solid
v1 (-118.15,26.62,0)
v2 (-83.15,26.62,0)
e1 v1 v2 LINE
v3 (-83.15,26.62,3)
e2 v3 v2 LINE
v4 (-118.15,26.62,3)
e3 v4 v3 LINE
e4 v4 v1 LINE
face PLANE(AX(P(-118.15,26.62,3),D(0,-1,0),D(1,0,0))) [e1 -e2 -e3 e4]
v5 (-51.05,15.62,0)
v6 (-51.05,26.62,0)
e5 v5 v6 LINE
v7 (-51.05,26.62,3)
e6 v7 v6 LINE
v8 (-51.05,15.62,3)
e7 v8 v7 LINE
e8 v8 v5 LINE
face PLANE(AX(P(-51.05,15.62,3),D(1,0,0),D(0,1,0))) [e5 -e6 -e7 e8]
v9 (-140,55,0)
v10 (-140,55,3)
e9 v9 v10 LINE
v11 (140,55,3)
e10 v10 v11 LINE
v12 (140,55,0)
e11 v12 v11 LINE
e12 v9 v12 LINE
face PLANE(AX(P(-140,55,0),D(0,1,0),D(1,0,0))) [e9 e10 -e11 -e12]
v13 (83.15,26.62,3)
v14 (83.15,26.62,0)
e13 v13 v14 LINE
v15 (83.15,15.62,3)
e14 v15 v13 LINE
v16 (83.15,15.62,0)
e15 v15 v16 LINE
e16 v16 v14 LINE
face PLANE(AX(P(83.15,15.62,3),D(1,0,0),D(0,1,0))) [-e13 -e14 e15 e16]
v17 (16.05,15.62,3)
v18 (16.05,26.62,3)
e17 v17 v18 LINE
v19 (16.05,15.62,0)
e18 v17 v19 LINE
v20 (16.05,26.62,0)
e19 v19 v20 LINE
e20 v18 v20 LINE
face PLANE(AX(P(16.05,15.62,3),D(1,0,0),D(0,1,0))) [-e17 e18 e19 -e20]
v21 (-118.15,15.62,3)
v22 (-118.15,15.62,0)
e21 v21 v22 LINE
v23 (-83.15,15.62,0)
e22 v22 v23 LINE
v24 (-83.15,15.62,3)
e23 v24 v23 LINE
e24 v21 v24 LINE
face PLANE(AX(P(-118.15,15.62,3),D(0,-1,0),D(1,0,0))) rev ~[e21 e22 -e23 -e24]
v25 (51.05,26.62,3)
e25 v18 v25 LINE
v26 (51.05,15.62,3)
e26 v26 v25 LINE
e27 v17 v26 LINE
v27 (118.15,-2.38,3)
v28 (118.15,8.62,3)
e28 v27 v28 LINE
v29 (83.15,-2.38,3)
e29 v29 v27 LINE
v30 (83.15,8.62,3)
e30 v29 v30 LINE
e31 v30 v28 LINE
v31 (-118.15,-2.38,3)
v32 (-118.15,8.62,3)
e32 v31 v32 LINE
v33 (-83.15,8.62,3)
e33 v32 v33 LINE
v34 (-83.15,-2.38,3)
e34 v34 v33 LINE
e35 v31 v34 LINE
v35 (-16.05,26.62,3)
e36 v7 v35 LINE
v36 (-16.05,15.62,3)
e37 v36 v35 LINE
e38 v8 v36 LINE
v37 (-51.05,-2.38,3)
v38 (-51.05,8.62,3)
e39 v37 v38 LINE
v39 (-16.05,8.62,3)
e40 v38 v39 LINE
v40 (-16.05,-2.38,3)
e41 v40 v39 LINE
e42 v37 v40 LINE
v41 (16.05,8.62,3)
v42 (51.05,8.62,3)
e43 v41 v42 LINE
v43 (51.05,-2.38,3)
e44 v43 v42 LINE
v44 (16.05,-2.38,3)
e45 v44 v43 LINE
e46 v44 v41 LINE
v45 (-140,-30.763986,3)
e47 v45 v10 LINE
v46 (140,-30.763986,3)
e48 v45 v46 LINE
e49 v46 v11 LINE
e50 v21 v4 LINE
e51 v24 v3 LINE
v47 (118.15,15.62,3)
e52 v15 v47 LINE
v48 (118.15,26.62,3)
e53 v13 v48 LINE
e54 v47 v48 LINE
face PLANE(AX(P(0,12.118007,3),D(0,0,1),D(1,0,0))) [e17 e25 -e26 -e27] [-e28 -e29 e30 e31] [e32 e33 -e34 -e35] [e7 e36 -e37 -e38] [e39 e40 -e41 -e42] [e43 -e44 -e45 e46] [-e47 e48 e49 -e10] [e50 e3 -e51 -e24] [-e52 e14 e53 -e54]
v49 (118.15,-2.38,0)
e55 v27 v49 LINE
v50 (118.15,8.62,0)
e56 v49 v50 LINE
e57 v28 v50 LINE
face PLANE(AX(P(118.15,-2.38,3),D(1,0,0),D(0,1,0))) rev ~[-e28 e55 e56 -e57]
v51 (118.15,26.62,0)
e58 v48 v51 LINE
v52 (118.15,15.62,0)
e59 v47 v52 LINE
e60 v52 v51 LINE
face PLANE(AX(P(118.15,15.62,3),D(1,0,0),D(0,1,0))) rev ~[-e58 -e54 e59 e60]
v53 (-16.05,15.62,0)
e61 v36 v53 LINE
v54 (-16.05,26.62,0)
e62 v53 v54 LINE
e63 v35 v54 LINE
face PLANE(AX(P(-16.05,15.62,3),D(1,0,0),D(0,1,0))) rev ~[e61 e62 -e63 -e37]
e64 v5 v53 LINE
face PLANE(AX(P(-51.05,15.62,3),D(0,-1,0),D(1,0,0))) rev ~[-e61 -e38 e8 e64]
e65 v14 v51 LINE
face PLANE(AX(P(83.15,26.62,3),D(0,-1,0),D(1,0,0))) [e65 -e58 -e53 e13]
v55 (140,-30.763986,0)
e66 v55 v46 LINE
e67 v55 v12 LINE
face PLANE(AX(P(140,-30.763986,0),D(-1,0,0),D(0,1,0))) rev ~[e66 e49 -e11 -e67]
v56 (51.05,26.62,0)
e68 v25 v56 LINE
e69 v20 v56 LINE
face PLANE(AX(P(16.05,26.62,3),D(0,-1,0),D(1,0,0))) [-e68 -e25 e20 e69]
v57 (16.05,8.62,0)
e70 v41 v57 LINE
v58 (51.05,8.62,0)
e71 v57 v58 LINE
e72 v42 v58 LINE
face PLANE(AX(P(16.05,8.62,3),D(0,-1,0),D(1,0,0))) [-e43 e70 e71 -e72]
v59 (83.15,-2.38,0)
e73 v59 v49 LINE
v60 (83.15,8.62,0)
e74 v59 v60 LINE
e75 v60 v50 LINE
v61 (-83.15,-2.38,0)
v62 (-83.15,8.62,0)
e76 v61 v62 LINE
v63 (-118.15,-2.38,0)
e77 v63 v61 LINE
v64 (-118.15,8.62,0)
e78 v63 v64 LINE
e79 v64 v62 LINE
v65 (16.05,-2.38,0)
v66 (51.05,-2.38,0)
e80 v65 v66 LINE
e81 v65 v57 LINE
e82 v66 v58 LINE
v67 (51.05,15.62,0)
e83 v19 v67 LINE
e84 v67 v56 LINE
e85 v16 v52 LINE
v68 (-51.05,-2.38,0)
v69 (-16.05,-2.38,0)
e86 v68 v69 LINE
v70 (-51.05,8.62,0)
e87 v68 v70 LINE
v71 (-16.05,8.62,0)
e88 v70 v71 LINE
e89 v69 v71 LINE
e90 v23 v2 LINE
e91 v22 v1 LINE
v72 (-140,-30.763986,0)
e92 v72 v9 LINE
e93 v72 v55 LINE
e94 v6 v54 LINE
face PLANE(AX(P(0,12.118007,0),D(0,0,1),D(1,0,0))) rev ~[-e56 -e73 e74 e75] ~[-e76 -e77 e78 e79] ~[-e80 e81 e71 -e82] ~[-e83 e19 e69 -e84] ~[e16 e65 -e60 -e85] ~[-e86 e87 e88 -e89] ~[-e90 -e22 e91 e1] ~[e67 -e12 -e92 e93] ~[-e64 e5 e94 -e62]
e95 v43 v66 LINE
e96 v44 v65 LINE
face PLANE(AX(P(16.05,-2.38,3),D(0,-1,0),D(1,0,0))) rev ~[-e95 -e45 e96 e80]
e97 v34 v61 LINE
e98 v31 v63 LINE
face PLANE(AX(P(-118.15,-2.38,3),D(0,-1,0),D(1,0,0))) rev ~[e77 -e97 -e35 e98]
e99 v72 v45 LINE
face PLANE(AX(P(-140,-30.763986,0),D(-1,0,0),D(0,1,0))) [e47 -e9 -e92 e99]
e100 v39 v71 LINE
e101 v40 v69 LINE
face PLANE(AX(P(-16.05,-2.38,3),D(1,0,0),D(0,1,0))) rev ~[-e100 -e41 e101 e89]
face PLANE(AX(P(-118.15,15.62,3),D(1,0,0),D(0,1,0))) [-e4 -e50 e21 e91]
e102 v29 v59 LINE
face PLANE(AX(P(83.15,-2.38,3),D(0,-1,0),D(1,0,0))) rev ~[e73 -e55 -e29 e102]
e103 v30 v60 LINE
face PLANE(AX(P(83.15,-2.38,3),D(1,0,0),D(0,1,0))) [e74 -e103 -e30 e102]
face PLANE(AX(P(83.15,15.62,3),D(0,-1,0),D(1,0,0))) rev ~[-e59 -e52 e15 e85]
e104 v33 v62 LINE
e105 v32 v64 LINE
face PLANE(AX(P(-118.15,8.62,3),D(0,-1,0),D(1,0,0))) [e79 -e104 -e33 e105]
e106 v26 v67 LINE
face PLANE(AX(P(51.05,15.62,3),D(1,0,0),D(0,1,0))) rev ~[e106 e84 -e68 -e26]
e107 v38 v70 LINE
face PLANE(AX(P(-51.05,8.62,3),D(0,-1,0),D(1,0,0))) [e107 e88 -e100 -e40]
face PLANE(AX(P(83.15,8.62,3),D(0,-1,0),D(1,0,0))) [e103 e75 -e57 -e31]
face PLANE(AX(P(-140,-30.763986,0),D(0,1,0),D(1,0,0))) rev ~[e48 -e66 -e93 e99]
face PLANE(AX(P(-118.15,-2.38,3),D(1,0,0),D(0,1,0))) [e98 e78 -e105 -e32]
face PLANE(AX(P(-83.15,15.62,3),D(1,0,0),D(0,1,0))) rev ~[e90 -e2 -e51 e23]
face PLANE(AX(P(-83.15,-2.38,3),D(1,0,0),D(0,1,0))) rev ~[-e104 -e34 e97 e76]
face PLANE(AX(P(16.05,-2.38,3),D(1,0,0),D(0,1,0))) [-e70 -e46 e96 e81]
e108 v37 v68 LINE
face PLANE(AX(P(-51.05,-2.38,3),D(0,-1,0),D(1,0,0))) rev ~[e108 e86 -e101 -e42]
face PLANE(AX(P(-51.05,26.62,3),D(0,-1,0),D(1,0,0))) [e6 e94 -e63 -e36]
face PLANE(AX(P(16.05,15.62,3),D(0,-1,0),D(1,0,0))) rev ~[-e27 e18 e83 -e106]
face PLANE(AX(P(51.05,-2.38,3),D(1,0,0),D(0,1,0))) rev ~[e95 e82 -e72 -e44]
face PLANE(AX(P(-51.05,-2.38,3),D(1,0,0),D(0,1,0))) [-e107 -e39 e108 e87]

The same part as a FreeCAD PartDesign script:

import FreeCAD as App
import Part
import Sketcher
from FreeCAD import Vector

doc = App.newDocument("Part")
body = doc.addObject("PartDesign::Body", "Body")

# Sketch on XY plane
sketch1 = body.newObject("Sketcher::SketchObject", "Sketch")
sketch1.AttachmentSupport = (doc.getObject("XY_Plane"), [""])
sketch1.MapMode = "FlatFace"
sketch1.addGeometry(Part.LineSegment(Vector(-140, 55, 0), Vector(-140, -31, 0)), False)
sketch1.addGeometry(Part.LineSegment(Vector(-140, -31, 0), Vector(140, -31, 0)), False)
sketch1.addGeometry(Part.LineSegment(Vector(140, -31, 0), Vector(140, 55, 0)), False)
sketch1.addGeometry(Part.LineSegment(Vector(140, 55, 0), Vector(-140, 55, 0)), False)
sketch1.addConstraint(Sketcher.Constraint("Coincident", 0, 2, 1, 1))
sketch1.addConstraint(Sketcher.Constraint("Coincident", 1, 2, 2, 1))
sketch1.addConstraint(Sketcher.Constraint("Coincident", 2, 2, 3, 1))
sketch1.addConstraint(Sketcher.Constraint("Coincident", 3, 2, 0, 1))
sketch1.addConstraint(Sketcher.Constraint("Vertical", 0))
sketch1.addConstraint(Sketcher.Constraint("Horizontal", 1))
sketch1.addConstraint(Sketcher.Constraint("Vertical", 2))
sketch1.addConstraint(Sketcher.Constraint("Horizontal", 3))
sketch1.addConstraint(Sketcher.Constraint("DistanceX", 1, 1, 1, 2, 280.0))
sketch1.addConstraint(Sketcher.Constraint("DistanceX", 0, 2, -1, 1, 140.0))
sketch1.addConstraint(Sketcher.Constraint("DistanceY", -1, 1, 2, 2, 55.0))
sketch1.addConstraint(Sketcher.Constraint("DistanceY", 0, 2, 0, 1, 85.763986))
pad1 = body.newObject("PartDesign::Pad", "Pad")
pad1.Profile = sketch1
pad1.Length = 3

# Sketch on XY plane
sketch2 = body.newObject("Sketcher::SketchObject", "Sketch001")
sketch2.AttachmentSupport = (doc.getObject("XY_Plane"), [""])
sketch2.MapMode = "FlatFace"
sketch2.AttachmentOffset = App.Placement(Vector(0, 0, 3), App.Rotation())
sketch2.addGeometry(Part.LineSegment(Vector(-118, 27, 0), Vector(-118, 16, 0)), False)
sketch2.addGeometry(Part.LineSegment(Vector(-118, 16, 0), Vector(-83, 16, 0)), False)
sketch2.addGeometry(Part.LineSegment(Vector(-83, 16, 0), Vector(-83, 27, 0)), False)
sketch2.addGeometry(Part.LineSegment(Vector(-83, 27, 0), Vector(-118, 27, 0)), False)
sketch2.addGeometry(Part.LineSegment(Vector(83, 9, 0), Vector(83, -2, 0)), False)
sketch2.addGeometry(Part.LineSegment(Vector(83, -2, 0), Vector(118, -2, 0)), False)
sketch2.addGeometry(Part.LineSegment(Vector(118, -2, 0), Vector(118, 9, 0)), False)
sketch2.addGeometry(Part.LineSegment(Vector(118, 9, 0), Vector(83, 9, 0)), False)
sketch2.addGeometry(Part.LineSegment(Vector(83, 27, 0), Vector(83, 16, 0)), False)
sketch2.addGeometry(Part.LineSegment(Vector(83, 16, 0), Vector(118, 16, 0)), False)
sketch2.addGeometry(Part.LineSegment(Vector(118, 16, 0), Vector(118, 27, 0)), False)
sketch2.addGeometry(Part.LineSegment(Vector(118, 27, 0), Vector(83, 27, 0)), False)
sketch2.addGeometry(Part.LineSegment(Vector(16, 9, 0), Vector(16, -2, 0)), False)
sketch2.addGeometry(Part.LineSegment(Vector(16, -2, 0), Vector(51, -2, 0)), False)
sketch2.addGeometry(Part.LineSegment(Vector(51, -2, 0), Vector(51, 9, 0)), False)
sketch2.addGeometry(Part.LineSegment(Vector(51, 9, 0), Vector(16, 9, 0)), False)
sketch2.addGeometry(Part.LineSegment(Vector(16, 27, 0), Vector(16, 16, 0)), False)
sketch2.addGeometry(Part.LineSegment(Vector(16, 16, 0), Vector(51, 16, 0)), False)
sketch2.addGeometry(Part.LineSegment(Vector(51, 16, 0), Vector(51, 27, 0)), False)
sketch2.addGeometry(Part.LineSegment(Vector(51, 27, 0), Vector(16, 27, 0)), False)
sketch2.addGeometry(Part.LineSegment(Vector(-51, 9, 0), Vector(-51, -2, 0)), False)
sketch2.addGeometry(Part.LineSegment(Vector(-51, -2, 0), Vector(-16, -2, 0)), False)
sketch2.addGeometry(Part.LineSegment(Vector(-16, -2, 0), Vector(-16, 9, 0)), False)
sketch2.addGeometry(Part.LineSegment(Vector(-16, 9, 0), Vector(-51, 9, 0)), False)
sketch2.addGeometry(Part.LineSegment(Vector(-51, 27, 0), Vector(-51, 16, 0)), False)
sketch2.addGeometry(Part.LineSegment(Vector(-51, 16, 0), Vector(-16, 16, 0)), False)
sketch2.addGeometry(Part.LineSegment(Vector(-16, 16, 0), Vector(-16, 27, 0)), False)
sketch2.addGeometry(Part.LineSegment(Vector(-16, 27, 0), Vector(-51, 27, 0)), False)
sketch2.addGeometry(Part.LineSegment(Vector(-118, 9, 0), Vector(-118, -2, 0)), False)
sketch2.addGeometry(Part.LineSegment(Vector(-118, -2, 0), Vector(-83, -2, 0)), False)
sketch2.addGeometry(Part.LineSegment(Vector(-83, -2, 0), Vector(-83, 9, 0)), False)
sketch2.addGeometry(Part.LineSegment(Vector(-83, 9, 0), Vector(-118, 9, 0)), False)
sketch2.addConstraint(Sketcher.Constraint("Coincident", 0, 2, 1, 1))
sketch2.addConstraint(Sketcher.Constraint("Coincident", 1, 2, 2, 1))
sketch2.addConstraint(Sketcher.Constraint("Coincident", 2, 2, 3, 1))
sketch2.addConstraint(Sketcher.Constraint("Coincident", 3, 2, 0, 1))
sketch2.addConstraint(Sketcher.Constraint("Coincident", 4, 2, 5, 1))
sketch2.addConstraint(Sketcher.Constraint("Coincident", 5, 2, 6, 1))
sketch2.addConstraint(Sketcher.Constraint("Coincident", 6, 2, 7, 1))
sketch2.addConstraint(Sketcher.Constraint("Coincident", 7, 2, 4, 1))
sketch2.addConstraint(Sketcher.Constraint("Coincident", 8, 2, 9, 1))
sketch2.addConstraint(Sketcher.Constraint("Coincident", 9, 2, 10, 1))
sketch2.addConstraint(Sketcher.Constraint("Coincident", 10, 2, 11, 1))
sketch2.addConstraint(Sketcher.Constraint("Coincident", 11, 2, 8, 1))
sketch2.addConstraint(Sketcher.Constraint("Coincident", 12, 2, 13, 1))
sketch2.addConstraint(Sketcher.Constraint("Coincident", 13, 2, 14, 1))
sketch2.addConstraint(Sketcher.Constraint("Coincident", 14, 2, 15, 1))
sketch2.addConstraint(Sketcher.Constraint("Coincident", 15, 2, 12, 1))
sketch2.addConstraint(Sketcher.Constraint("Coincident", 16, 2, 17, 1))
sketch2.addConstraint(Sketcher.Constraint("Coincident", 17, 2, 18, 1))
sketch2.addConstraint(Sketcher.Constraint("Coincident", 18, 2, 19, 1))
sketch2.addConstraint(Sketcher.Constraint("Coincident", 19, 2, 16, 1))
sketch2.addConstraint(Sketcher.Constraint("Coincident", 20, 2, 21, 1))
sketch2.addConstraint(Sketcher.Constraint("Coincident", 21, 2, 22, 1))
sketch2.addConstraint(Sketcher.Constraint("Coincident", 22, 2, 23, 1))
sketch2.addConstraint(Sketcher.Constraint("Coincident", 23, 2, 20, 1))
sketch2.addConstraint(Sketcher.Constraint("Coincident", 24, 2, 25, 1))
sketch2.addConstraint(Sketcher.Constraint("Coincident", 25, 2, 26, 1))
sketch2.addConstraint(Sketcher.Constraint("Coincident", 26, 2, 27, 1))
sketch2.addConstraint(Sketcher.Constraint("Coincident", 27, 2, 24, 1))
sketch2.addConstraint(Sketcher.Constraint("Coincident", 28, 2, 29, 1))
sketch2.addConstraint(Sketcher.Constraint("Coincident", 29, 2, 30, 1))
sketch2.addConstraint(Sketcher.Constraint("Coincident", 30, 2, 31, 1))
sketch2.addConstraint(Sketcher.Constraint("Coincident", 31, 2, 28, 1))
sketch2.addConstraint(Sketcher.Constraint("Vertical", 0))
sketch2.addConstraint(Sketcher.Constraint("Horizontal", 1))
sketch2.addConstraint(Sketcher.Constraint("Vertical", 2))
sketch2.addConstraint(Sketcher.Constraint("Horizontal", 3))
sketch2.addConstraint(Sketcher.Constraint("Vertical", 4))
sketch2.addConstraint(Sketcher.Constraint("Horizontal", 5))
sketch2.addConstraint(Sketcher.Constraint("Vertical", 6))
sketch2.addConstraint(Sketcher.Constraint("Horizontal", 7))
sketch2.addConstraint(Sketcher.Constraint("Vertical", 8))
sketch2.addConstraint(Sketcher.Constraint("Horizontal", 9))
sketch2.addConstraint(Sketcher.Constraint("Vertical", 10))
sketch2.addConstraint(Sketcher.Constraint("Horizontal", 11))
sketch2.addConstraint(Sketcher.Constraint("Vertical", 12))
sketch2.addConstraint(Sketcher.Constraint("Horizontal", 13))
sketch2.addConstraint(Sketcher.Constraint("Vertical", 14))
sketch2.addConstraint(Sketcher.Constraint("Horizontal", 15))
sketch2.addConstraint(Sketcher.Constraint("Vertical", 16))
sketch2.addConstraint(Sketcher.Constraint("Horizontal", 17))
sketch2.addConstraint(Sketcher.Constraint("Vertical", 18))
sketch2.addConstraint(Sketcher.Constraint("Horizontal", 19))
sketch2.addConstraint(Sketcher.Constraint("Vertical", 20))
sketch2.addConstraint(Sketcher.Constraint("Horizontal", 21))
sketch2.addConstraint(Sketcher.Constraint("Vertical", 22))
sketch2.addConstraint(Sketcher.Constraint("Horizontal", 23))
sketch2.addConstraint(Sketcher.Constraint("Vertical", 24))
sketch2.addConstraint(Sketcher.Constraint("Horizontal", 25))
sketch2.addConstraint(Sketcher.Constraint("Vertical", 26))
sketch2.addConstraint(Sketcher.Constraint("Horizontal", 27))
sketch2.addConstraint(Sketcher.Constraint("Vertical", 28))
sketch2.addConstraint(Sketcher.Constraint("Horizontal", 29))
sketch2.addConstraint(Sketcher.Constraint("Vertical", 30))
sketch2.addConstraint(Sketcher.Constraint("Horizontal", 31))
sketch2.addConstraint(Sketcher.Constraint("Symmetric", 1, 2, 8, 2, -2))
sketch2.addConstraint(Sketcher.Constraint("Symmetric", 3, 2, 10, 2, -2))
sketch2.addConstraint(Sketcher.Constraint("Symmetric", 13, 2, 20, 2, -2))
sketch2.addConstraint(Sketcher.Constraint("Symmetric", 15, 2, 22, 2, -2))
sketch2.addConstraint(Sketcher.Constraint("Symmetric", 17, 2, 24, 2, -2))
sketch2.addConstraint(Sketcher.Constraint("Symmetric", 19, 2, 26, 2, -2))
sketch2.addConstraint(Sketcher.Constraint("Symmetric", 5, 2, 28, 2, -2))
sketch2.addConstraint(Sketcher.Constraint("Symmetric", 7, 2, 30, 2, -2))
sketch2.addConstraint(Sketcher.Constraint("Horizontal", 5, 2, 12, 2))
sketch2.addConstraint(Sketcher.Constraint("Horizontal", 7, 2, 14, 2))
sketch2.addConstraint(Sketcher.Constraint("Horizontal", 9, 2, 16, 2))
sketch2.addConstraint(Sketcher.Constraint("Horizontal", 11, 2, 18, 2))
sketch2.addConstraint(Sketcher.Constraint("Vertical", 7, 2, 8, 2))
sketch2.addConstraint(Sketcher.Constraint("Vertical", 6, 2, 9, 2))
sketch2.addConstraint(Sketcher.Constraint("Vertical", 15, 2, 16, 2))
sketch2.addConstraint(Sketcher.Constraint("Vertical", 14, 2, 17, 2))
sketch2.addConstraint(Sketcher.Constraint("Equal", 11, 13))
sketch2.addConstraint(Sketcher.Constraint("Equal", 2, 4))
sketch2.addConstraint(Sketcher.Constraint("DistanceX", 1, 1, 1, 2, 35.0))
sketch2.addConstraint(Sketcher.Constraint("DistanceY", 0, 2, 0, 1, 11.0))
sketch2.addConstraint(Sketcher.Constraint("DistanceY", 4, 2, 1, 2, 18.0))
sketch2.addConstraint(Sketcher.Constraint("DistanceX", 1, 2, 4, 2, 166.3))
sketch2.addConstraint(Sketcher.Constraint("DistanceX", 12, 2, 4, 2, 67.1))
sketch2.addConstraint(Sketcher.Constraint("DistanceY", -1, 1, 0, 2, 15.62))
pocket1 = body.newObject("PartDesign::Pocket", "Pocket")
pocket1.Profile = sketch2
pocket1.Length = 3

doc.recompute()
